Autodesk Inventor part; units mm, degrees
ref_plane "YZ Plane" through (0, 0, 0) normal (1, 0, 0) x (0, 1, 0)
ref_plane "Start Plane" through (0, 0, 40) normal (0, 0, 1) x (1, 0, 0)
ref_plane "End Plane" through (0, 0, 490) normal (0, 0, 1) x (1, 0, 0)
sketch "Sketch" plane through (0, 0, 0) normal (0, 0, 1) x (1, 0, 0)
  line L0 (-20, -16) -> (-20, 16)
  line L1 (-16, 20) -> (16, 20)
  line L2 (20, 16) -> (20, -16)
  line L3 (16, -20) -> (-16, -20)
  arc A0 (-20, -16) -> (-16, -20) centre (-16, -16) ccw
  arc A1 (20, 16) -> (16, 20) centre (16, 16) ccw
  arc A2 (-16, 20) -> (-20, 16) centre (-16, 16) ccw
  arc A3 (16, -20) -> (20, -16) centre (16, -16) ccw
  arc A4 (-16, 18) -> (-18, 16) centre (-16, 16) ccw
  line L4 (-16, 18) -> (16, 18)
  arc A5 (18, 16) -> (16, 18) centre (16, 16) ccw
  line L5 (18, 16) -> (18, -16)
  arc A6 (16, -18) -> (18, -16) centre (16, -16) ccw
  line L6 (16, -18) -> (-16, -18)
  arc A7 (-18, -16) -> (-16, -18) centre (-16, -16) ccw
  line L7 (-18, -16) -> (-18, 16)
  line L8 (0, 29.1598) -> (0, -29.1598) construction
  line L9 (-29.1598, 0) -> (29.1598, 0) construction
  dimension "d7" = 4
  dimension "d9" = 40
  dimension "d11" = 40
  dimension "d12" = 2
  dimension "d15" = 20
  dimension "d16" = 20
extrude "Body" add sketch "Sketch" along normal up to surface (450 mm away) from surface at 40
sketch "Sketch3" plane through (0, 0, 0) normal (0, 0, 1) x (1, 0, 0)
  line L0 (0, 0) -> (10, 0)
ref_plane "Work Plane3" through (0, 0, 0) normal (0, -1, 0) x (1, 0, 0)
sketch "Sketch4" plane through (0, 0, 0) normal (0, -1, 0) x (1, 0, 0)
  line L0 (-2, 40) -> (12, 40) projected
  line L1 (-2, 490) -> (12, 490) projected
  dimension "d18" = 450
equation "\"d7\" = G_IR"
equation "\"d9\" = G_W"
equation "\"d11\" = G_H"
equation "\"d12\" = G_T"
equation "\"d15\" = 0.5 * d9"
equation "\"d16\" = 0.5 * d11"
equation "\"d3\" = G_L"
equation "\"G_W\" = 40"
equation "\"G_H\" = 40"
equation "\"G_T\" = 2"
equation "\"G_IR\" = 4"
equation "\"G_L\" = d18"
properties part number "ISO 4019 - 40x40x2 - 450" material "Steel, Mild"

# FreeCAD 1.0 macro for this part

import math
import FreeCAD as App
import Part
import Sketcher

V = App.Vector
Q = App.Units.Quantity

doc = App.newDocument("Part")
params = doc.addObject("Spreadsheet::Sheet", "Params")
for row, (alias, value) in enumerate([
    ("sketch1_radius", "4 mm"),
    ("sketch1_radius2", "2 mm"),
    ("pad1_length", "450 mm"),
], start=1):
    params.set(f"A{row}", alias)
    params.set(f"B{row}", "=" + value)
    params.setAlias(f"B{row}", alias)

body = doc.addObject("PartDesign::Body", "Body")

sketch1 = doc.addObject("Sketcher::SketchObject", "Sketch")
body.addObject(sketch1)
sketch1.AttachmentSupport = (doc.XY_Plane, [""])
sketch1.MapMode = "FlatFace"
sketch1.AttachmentOffset = App.Placement(V(0, 0, 40), App.Rotation())
sketch1.addGeometry([
    Part.LineSegment(V(-20, 16, 0), V(-20, -16, 0)),
    Part.ArcOfCircle(Part.Circle(V(-16, -16, 0), V(0, 0, 1), 4), math.radians(180), math.radians(270)),
    Part.LineSegment(V(-16, -20, 0), V(16, -20, 0)),
    Part.ArcOfCircle(Part.Circle(V(16, -16, 0), V(0, 0, 1), 4), math.radians(-90), math.radians(0)),
    Part.LineSegment(V(20, -16, 0), V(20, 16, 0)),
    Part.ArcOfCircle(Part.Circle(V(16, 16, 0), V(0, 0, 1), 4), math.radians(0), math.radians(90)),
    Part.LineSegment(V(16, 20, 0), V(-16, 20, 0)),
    Part.ArcOfCircle(Part.Circle(V(-16, 16, 0), V(0, 0, 1), 4), math.radians(90), math.radians(180)),
    Part.ArcOfCircle(Part.Circle(V(-16, 16, 0), V(0, 0, 1), 2), math.radians(90), math.radians(180)),
    Part.LineSegment(V(-16, 18, 0), V(16, 18, 0)),
    Part.ArcOfCircle(Part.Circle(V(16, 16, 0), V(0, 0, 1), 2), math.radians(0), math.radians(90)),
    Part.LineSegment(V(18, 16, 0), V(18, -16, 0)),
    Part.ArcOfCircle(Part.Circle(V(16, -16, 0), V(0, 0, 1), 2), math.radians(-90), math.radians(0)),
    Part.LineSegment(V(16, -18, 0), V(-16, -18, 0)),
    Part.ArcOfCircle(Part.Circle(V(-16, -16, 0), V(0, 0, 1), 2), math.radians(180), math.radians(270)),
    Part.LineSegment(V(-18, -16, 0), V(-18, 16, 0)),
], False)
sketch1.addConstraint([
    Sketcher.Constraint("Tangent", 0, 2, 1, 1),
    Sketcher.Constraint("Tangent", 1, 2, 2, 1),
    Sketcher.Constraint("Tangent", 2, 2, 3, 1),
    Sketcher.Constraint("Tangent", 3, 2, 4, 1),
    Sketcher.Constraint("Tangent", 4, 2, 5, 1),
    Sketcher.Constraint("Tangent", 5, 2, 6, 1),
    Sketcher.Constraint("Tangent", 6, 2, 7, 1),
    Sketcher.Constraint("Tangent", 7, 2, 0, 1),
    Sketcher.Constraint("Tangent", 8, 1, 9, 1),
    Sketcher.Constraint("Tangent", 9, 2, 10, 2),
    Sketcher.Constraint("Tangent", 10, 1, 11, 1),
    Sketcher.Constraint("Tangent", 11, 2, 12, 2),
    Sketcher.Constraint("Tangent", 12, 1, 13, 1),
    Sketcher.Constraint("Tangent", 13, 2, 14, 2),
    Sketcher.Constraint("Tangent", 14, 1, 15, 1),
    Sketcher.Constraint("Tangent", 15, 2, 8, 2),
    Sketcher.Constraint("Vertical", 0),
    Sketcher.Constraint("Horizontal", 2),
    Sketcher.Constraint("Vertical", 4),
    Sketcher.Constraint("Horizontal", 6),
    Sketcher.Constraint("Horizontal", 9),
    Sketcher.Constraint("Vertical", 11),
    Sketcher.Constraint("Horizontal", 13),
    Sketcher.Constraint("Vertical", 15),
    Sketcher.Constraint("Coincident", 8, 3, 7, 3),
    Sketcher.Constraint("Coincident", 10, 3, 5, 3),
    Sketcher.Constraint("Coincident", 12, 3, 3, 3),
    Sketcher.Constraint("Equal", 1, 3),
    Sketcher.Constraint("Equal", 3, 5),
    Sketcher.Constraint("Equal", 5, 7),
    Sketcher.Constraint("Equal", 12, 14),
    Sketcher.Constraint("Symmetric", 1, 3, 5, 3, -1, 1),
    Sketcher.Constraint("Equal", 13, 0),
    Sketcher.Constraint("Radius", 1, Q("4 mm")),
    Sketcher.Constraint("Radius", 8, Q("2 mm")),
    Sketcher.Constraint("DistanceX", 0, 2, -1, 1, Q("20 mm")),
])
sketch1.setExpression("Constraints[33]", "Params.sketch1_radius")
sketch1.setExpression("Constraints[34]", "Params.sketch1_radius2")
pad1 = doc.addObject("PartDesign::Pad", "Pad")
body.addObject(pad1)
pad1.Profile = sketch1
pad1.setExpression("Length", "Params.pad1_length")

doc.recompute()
